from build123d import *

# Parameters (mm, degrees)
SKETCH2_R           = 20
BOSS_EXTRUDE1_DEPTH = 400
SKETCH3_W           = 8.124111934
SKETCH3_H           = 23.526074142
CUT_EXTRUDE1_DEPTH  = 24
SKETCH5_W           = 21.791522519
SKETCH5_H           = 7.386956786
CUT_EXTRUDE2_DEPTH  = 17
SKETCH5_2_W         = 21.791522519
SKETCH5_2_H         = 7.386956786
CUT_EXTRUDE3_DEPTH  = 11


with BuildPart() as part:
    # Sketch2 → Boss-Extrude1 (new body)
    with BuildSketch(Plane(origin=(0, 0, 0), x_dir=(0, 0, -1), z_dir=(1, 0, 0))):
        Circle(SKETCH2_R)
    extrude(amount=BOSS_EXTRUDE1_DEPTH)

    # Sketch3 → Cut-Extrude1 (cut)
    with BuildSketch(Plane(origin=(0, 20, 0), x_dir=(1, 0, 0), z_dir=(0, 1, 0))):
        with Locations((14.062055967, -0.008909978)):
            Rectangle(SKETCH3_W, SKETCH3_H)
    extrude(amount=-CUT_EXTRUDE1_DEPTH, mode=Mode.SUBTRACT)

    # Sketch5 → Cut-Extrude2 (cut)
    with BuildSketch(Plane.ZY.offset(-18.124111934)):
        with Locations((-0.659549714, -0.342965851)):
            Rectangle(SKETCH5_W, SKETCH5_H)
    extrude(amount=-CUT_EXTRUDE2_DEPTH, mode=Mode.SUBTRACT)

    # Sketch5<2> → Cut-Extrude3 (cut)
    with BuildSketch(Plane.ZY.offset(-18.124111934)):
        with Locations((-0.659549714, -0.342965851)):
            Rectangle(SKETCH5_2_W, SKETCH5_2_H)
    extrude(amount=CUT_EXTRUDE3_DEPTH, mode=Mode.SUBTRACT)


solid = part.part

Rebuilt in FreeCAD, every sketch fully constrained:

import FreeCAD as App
import Part
import Sketcher
from FreeCAD import Vector
Q = App.Units.Quantity


def add_polygon(sketch, points):
    """Adds a closed chain of lines whose ends are joined by coincident constraints."""
    first, n = sketch.GeometryCount, len(points)
    for a, b in zip(points, points[1:] + points[:1]):
        sketch.addGeometry(Part.LineSegment(App.Vector(*a, 0), App.Vector(*b, 0)), False)
    for i in range(n):
        sketch.addConstraint(Sketcher.Constraint("Coincident", first + i, 2, first + (i + 1) % n, 1))

doc = App.newDocument("Part")
body = doc.addObject("PartDesign::Body", "Body")

# Sketch on YZ plane
sketch1 = body.newObject("Sketcher::SketchObject", "Sketch")
sketch1.AttachmentSupport = (doc.getObject("YZ_Plane"), [""])
sketch1.MapMode = "FlatFace"
sketch1.addGeometry(Part.Circle(Vector(0, 0, 0), Vector(0, 0, 1), 20), False)
sketch1.addConstraint([
    Sketcher.Constraint("Coincident", 0, 3, -1, 1),
    Sketcher.Constraint("Diameter", 0, Q("40 mm")),
])
pad1 = body.newObject("PartDesign::Pad", "Pad")
pad1.Profile = sketch1
pad1.Length = 400

# Sketch on XZ plane
sketch2 = body.newObject("Sketcher::SketchObject", "Sketch001")
sketch2.AttachmentSupport = (doc.getObject("XZ_Plane"), [""])
sketch2.MapMode = "FlatFace"
sketch2.AttachmentOffset = App.Placement(Vector(0, 0, -20), App.Rotation())
add_polygon(sketch2, [(10, -12), (10, 12), (18, 12), (18, -12)])  # lines 0-3
sketch2.addConstraint([
    Sketcher.Constraint("Vertical", 0),
    Sketcher.Constraint("Horizontal", 1),
    Sketcher.Constraint("Vertical", 2),
    Sketcher.Constraint("Horizontal", 3),
    Sketcher.Constraint("DistanceX", -1, 1, 0, 2, Q("10 mm")),
    Sketcher.Constraint("DistanceX", 1, 1, 1, 2, Q("8.124112 mm")),
    Sketcher.Constraint("DistanceY", 0, 1, 0, 2, Q("23.526074 mm")),
    Sketcher.Constraint("DistanceY", -1, 1, 0, 2, Q("11.771947 mm")),
])
pocket1 = body.newObject("PartDesign::Pocket", "Pocket")
pocket1.Profile = sketch2
pocket1.Length = 24
pocket1.Reversed = True

# Sketch on YZ plane
sketch3 = body.newObject("Sketcher::SketchObject", "Sketch002")
sketch3.AttachmentSupport = (doc.getObject("YZ_Plane"), [""])
sketch3.MapMode = "FlatFace"
sketch3.AttachmentOffset = App.Placement(Vector(0, 0, 18.124112), App.Rotation())
add_polygon(sketch3, [(3, -12), (-4, -12), (-4, 10), (3, 10)])  # lines 0-3
sketch3.addConstraint([
    Sketcher.Constraint("Horizontal", 0),
    Sketcher.Constraint("Vertical", 1),
    Sketcher.Constraint("Horizontal", 2),
    Sketcher.Constraint("Vertical", 3),
    Sketcher.Constraint("DistanceX", 0, 2, 0, 1, Q("7.386957 mm")),
    Sketcher.Constraint("DistanceY", 1, 1, 1, 2, Q("21.791523 mm")),
    Sketcher.Constraint("DistanceY", 0, 2, -1, 1, Q("11.555311 mm")),
    Sketcher.Constraint("DistanceX", 0, 2, -1, 1, Q("4.036444 mm")),
])
pocket2 = body.newObject("PartDesign::Pocket", "Pocket001")
pocket2.Profile = sketch3
pocket2.Length = 17
pocket2.Reversed = True

# Sketch on YZ plane
sketch4 = body.newObject("Sketcher::SketchObject", "Sketch003")
sketch4.AttachmentSupport = (doc.getObject("YZ_Plane"), [""])
sketch4.MapMode = "FlatFace"
sketch4.AttachmentOffset = App.Placement(Vector(0, 0, 18.124112), App.Rotation())
add_polygon(sketch4, [(3, -12), (-4, -12), (-4, 10), (3, 10)])  # lines 0-3
sketch4.addConstraint([
    Sketcher.Constraint("Horizontal", 0),
    Sketcher.Constraint("Vertical", 1),
    Sketcher.Constraint("Horizontal", 2),
    Sketcher.Constraint("Vertical", 3),
    Sketcher.Constraint("DistanceX", 0, 2, 0, 1, Q("7.386957 mm")),
    Sketcher.Constraint("DistanceY", 1, 1, 1, 2, Q("21.791523 mm")),
    Sketcher.Constraint("DistanceY", 0, 2, -1, 1, Q("11.555311 mm")),
    Sketcher.Constraint("DistanceX", 0, 2, -1, 1, Q("4.036444 mm")),
])
pocket3 = body.newObject("PartDesign::Pocket", "Pocket002")
pocket3.Profile = sketch4
pocket3.Length = 11

doc.recompute()
